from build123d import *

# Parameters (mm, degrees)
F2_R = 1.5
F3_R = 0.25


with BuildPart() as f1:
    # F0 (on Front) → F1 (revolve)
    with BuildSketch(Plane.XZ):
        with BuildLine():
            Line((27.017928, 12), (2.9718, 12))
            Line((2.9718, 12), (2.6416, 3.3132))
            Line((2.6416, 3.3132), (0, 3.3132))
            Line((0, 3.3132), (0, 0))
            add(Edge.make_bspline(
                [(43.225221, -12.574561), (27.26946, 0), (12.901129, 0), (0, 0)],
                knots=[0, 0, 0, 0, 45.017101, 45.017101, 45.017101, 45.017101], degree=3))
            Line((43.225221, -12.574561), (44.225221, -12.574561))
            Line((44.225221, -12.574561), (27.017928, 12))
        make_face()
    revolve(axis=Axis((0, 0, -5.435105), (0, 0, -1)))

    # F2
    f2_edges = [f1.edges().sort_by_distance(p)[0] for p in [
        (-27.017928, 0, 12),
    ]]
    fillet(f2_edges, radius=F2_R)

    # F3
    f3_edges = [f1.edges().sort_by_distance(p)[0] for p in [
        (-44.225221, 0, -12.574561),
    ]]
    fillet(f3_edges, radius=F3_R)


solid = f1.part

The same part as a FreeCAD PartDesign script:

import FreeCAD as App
import Part
import Sketcher
Q = App.Units.Quantity


def edges_at(feature, points):
    """Names of the edges that pass closest to the given points."""
    edges = feature.Shape.Edges
    near = lambda p: min(range(len(edges)), key=lambda i: edges[i].distToShape(Part.Vertex(*p))[0])
    return sorted({f"Edge{near(p) + 1}" for p in points})

doc = App.newDocument("Part")
params = doc.addObject("Spreadsheet::Sheet", "Params")
for row, (alias, value) in enumerate([
    ("sketch1_width", "1 mm"),
    ("sketch1_length", "30 mm"),
    ("revolution_angle", "360 deg"),
    ("fillet_radius", "1.5 mm"),
    ("fillet2_radius", "0.25 mm"),
], start=1):
    params.set(f"A{row}", alias)
    params.set(f"B{row}", "=" + value)
    params.setAlias(f"B{row}", alias)

body = doc.addObject("PartDesign::Body", "Body")

# Sketch on XZ plane
sketch1 = body.newObject("Sketcher::SketchObject", "Sketch")
sketch1.AttachmentSupport = (doc.getObject("XZ_Plane"), [""])
sketch1.MapMode = "FlatFace"
sketch1.addGeometry(Part.LineSegment(App.Vector(27.017928, 12, 0), App.Vector(2.9718, 12, 0)), False)
sketch1.addGeometry(Part.LineSegment(App.Vector(2.9718, 12, 0), App.Vector(2.6416, 3.3132, 0)), False)
sketch1.addGeometry(Part.LineSegment(App.Vector(2.6416, 3.3132, 0), App.Vector(0, 3.3132, 0)), False)
sketch1.addGeometry(Part.LineSegment(App.Vector(0, 3.3132, 0), App.Vector(0, 0, 0)), False)
sketch1.addGeometry(Part.BSplineCurve([App.Vector(43.225221, -12.574561, 0), App.Vector(27.26946, 0, 0), App.Vector(12.901129, 0, 0), App.Vector(0, 0, 0)], [4, 4], [0, 45.017101], False, 3, [1, 1, 1, 1], False), False)
sketch1.addGeometry(Part.LineSegment(App.Vector(43.225221, -12.574561, 0), App.Vector(44.225221, -12.574561, 0)), False)
sketch1.addGeometry(Part.LineSegment(App.Vector(44.225221, -12.574561, 0), App.Vector(27.017928, 12, 0)), False)
sketch1.addConstraint(Sketcher.Constraint("Block", 4))
sketch1.addConstraint(Sketcher.Constraint("Coincident", 0, 2, 1, 1))
sketch1.addConstraint(Sketcher.Constraint("Coincident", 1, 2, 2, 1))
sketch1.addConstraint(Sketcher.Constraint("Coincident", 2, 2, 3, 1))
sketch1.addConstraint(Sketcher.Constraint("Coincident", 3, 2, 4, 2))
sketch1.addConstraint(Sketcher.Constraint("Coincident", 4, 1, 5, 1))
sketch1.addConstraint(Sketcher.Constraint("Coincident", 5, 2, 6, 1))
sketch1.addConstraint(Sketcher.Constraint("Coincident", 6, 2, 0, 1))
sketch1.addConstraint(Sketcher.Constraint("Horizontal", 0))
sketch1.addConstraint(Sketcher.Constraint("Horizontal", 2))
sketch1.addConstraint(Sketcher.Constraint("Vertical", 3))
sketch1.addConstraint(Sketcher.Constraint("Horizontal", 5))
sketch1.addConstraint(Sketcher.Constraint("DistanceX", 5, 1, 5, 2, 1.0))
sketch1.addConstraint(Sketcher.Constraint("Angle", 6, Q("125 deg")))
sketch1.addConstraint(Sketcher.Constraint("Distance", 6, 30.0))
sketch1.addConstraint(Sketcher.Constraint("DistanceX", 2, 2, 2, 1, 2.6416))
sketch1.addConstraint(Sketcher.Constraint("DistanceY", 3, 2, 3, 1, 3.3132))
sketch1.addConstraint(Sketcher.Constraint("DistanceX", 0, 2, 0, 1, 24.046128))
sketch1.setExpression("Constraints[12]", "Params.sketch1_width")
sketch1.setExpression("Constraints[14]", "Params.sketch1_length")
revolution = body.newObject("PartDesign::Revolution", "Revolution")
revolution.Profile = sketch1
revolution.ReferenceAxis = (sketch1, ["V_Axis"])
revolution.setExpression("Angle", "Params.revolution_angle")
doc.recompute()

fillet = body.newObject("PartDesign::Fillet", "Fillet")
fillet.Base = (revolution, edges_at(revolution, [(-27.018, 0, 12)]))
fillet.setExpression("Radius", "Params.fillet_radius")
doc.recompute()

fillet2 = body.newObject("PartDesign::Fillet", "Fillet001")
fillet2.Base = (fillet, edges_at(fillet, [(-44.225, 0, -12.575)]))
fillet2.setExpression("Radius", "Params.fillet2_radius")

doc.recompute()
